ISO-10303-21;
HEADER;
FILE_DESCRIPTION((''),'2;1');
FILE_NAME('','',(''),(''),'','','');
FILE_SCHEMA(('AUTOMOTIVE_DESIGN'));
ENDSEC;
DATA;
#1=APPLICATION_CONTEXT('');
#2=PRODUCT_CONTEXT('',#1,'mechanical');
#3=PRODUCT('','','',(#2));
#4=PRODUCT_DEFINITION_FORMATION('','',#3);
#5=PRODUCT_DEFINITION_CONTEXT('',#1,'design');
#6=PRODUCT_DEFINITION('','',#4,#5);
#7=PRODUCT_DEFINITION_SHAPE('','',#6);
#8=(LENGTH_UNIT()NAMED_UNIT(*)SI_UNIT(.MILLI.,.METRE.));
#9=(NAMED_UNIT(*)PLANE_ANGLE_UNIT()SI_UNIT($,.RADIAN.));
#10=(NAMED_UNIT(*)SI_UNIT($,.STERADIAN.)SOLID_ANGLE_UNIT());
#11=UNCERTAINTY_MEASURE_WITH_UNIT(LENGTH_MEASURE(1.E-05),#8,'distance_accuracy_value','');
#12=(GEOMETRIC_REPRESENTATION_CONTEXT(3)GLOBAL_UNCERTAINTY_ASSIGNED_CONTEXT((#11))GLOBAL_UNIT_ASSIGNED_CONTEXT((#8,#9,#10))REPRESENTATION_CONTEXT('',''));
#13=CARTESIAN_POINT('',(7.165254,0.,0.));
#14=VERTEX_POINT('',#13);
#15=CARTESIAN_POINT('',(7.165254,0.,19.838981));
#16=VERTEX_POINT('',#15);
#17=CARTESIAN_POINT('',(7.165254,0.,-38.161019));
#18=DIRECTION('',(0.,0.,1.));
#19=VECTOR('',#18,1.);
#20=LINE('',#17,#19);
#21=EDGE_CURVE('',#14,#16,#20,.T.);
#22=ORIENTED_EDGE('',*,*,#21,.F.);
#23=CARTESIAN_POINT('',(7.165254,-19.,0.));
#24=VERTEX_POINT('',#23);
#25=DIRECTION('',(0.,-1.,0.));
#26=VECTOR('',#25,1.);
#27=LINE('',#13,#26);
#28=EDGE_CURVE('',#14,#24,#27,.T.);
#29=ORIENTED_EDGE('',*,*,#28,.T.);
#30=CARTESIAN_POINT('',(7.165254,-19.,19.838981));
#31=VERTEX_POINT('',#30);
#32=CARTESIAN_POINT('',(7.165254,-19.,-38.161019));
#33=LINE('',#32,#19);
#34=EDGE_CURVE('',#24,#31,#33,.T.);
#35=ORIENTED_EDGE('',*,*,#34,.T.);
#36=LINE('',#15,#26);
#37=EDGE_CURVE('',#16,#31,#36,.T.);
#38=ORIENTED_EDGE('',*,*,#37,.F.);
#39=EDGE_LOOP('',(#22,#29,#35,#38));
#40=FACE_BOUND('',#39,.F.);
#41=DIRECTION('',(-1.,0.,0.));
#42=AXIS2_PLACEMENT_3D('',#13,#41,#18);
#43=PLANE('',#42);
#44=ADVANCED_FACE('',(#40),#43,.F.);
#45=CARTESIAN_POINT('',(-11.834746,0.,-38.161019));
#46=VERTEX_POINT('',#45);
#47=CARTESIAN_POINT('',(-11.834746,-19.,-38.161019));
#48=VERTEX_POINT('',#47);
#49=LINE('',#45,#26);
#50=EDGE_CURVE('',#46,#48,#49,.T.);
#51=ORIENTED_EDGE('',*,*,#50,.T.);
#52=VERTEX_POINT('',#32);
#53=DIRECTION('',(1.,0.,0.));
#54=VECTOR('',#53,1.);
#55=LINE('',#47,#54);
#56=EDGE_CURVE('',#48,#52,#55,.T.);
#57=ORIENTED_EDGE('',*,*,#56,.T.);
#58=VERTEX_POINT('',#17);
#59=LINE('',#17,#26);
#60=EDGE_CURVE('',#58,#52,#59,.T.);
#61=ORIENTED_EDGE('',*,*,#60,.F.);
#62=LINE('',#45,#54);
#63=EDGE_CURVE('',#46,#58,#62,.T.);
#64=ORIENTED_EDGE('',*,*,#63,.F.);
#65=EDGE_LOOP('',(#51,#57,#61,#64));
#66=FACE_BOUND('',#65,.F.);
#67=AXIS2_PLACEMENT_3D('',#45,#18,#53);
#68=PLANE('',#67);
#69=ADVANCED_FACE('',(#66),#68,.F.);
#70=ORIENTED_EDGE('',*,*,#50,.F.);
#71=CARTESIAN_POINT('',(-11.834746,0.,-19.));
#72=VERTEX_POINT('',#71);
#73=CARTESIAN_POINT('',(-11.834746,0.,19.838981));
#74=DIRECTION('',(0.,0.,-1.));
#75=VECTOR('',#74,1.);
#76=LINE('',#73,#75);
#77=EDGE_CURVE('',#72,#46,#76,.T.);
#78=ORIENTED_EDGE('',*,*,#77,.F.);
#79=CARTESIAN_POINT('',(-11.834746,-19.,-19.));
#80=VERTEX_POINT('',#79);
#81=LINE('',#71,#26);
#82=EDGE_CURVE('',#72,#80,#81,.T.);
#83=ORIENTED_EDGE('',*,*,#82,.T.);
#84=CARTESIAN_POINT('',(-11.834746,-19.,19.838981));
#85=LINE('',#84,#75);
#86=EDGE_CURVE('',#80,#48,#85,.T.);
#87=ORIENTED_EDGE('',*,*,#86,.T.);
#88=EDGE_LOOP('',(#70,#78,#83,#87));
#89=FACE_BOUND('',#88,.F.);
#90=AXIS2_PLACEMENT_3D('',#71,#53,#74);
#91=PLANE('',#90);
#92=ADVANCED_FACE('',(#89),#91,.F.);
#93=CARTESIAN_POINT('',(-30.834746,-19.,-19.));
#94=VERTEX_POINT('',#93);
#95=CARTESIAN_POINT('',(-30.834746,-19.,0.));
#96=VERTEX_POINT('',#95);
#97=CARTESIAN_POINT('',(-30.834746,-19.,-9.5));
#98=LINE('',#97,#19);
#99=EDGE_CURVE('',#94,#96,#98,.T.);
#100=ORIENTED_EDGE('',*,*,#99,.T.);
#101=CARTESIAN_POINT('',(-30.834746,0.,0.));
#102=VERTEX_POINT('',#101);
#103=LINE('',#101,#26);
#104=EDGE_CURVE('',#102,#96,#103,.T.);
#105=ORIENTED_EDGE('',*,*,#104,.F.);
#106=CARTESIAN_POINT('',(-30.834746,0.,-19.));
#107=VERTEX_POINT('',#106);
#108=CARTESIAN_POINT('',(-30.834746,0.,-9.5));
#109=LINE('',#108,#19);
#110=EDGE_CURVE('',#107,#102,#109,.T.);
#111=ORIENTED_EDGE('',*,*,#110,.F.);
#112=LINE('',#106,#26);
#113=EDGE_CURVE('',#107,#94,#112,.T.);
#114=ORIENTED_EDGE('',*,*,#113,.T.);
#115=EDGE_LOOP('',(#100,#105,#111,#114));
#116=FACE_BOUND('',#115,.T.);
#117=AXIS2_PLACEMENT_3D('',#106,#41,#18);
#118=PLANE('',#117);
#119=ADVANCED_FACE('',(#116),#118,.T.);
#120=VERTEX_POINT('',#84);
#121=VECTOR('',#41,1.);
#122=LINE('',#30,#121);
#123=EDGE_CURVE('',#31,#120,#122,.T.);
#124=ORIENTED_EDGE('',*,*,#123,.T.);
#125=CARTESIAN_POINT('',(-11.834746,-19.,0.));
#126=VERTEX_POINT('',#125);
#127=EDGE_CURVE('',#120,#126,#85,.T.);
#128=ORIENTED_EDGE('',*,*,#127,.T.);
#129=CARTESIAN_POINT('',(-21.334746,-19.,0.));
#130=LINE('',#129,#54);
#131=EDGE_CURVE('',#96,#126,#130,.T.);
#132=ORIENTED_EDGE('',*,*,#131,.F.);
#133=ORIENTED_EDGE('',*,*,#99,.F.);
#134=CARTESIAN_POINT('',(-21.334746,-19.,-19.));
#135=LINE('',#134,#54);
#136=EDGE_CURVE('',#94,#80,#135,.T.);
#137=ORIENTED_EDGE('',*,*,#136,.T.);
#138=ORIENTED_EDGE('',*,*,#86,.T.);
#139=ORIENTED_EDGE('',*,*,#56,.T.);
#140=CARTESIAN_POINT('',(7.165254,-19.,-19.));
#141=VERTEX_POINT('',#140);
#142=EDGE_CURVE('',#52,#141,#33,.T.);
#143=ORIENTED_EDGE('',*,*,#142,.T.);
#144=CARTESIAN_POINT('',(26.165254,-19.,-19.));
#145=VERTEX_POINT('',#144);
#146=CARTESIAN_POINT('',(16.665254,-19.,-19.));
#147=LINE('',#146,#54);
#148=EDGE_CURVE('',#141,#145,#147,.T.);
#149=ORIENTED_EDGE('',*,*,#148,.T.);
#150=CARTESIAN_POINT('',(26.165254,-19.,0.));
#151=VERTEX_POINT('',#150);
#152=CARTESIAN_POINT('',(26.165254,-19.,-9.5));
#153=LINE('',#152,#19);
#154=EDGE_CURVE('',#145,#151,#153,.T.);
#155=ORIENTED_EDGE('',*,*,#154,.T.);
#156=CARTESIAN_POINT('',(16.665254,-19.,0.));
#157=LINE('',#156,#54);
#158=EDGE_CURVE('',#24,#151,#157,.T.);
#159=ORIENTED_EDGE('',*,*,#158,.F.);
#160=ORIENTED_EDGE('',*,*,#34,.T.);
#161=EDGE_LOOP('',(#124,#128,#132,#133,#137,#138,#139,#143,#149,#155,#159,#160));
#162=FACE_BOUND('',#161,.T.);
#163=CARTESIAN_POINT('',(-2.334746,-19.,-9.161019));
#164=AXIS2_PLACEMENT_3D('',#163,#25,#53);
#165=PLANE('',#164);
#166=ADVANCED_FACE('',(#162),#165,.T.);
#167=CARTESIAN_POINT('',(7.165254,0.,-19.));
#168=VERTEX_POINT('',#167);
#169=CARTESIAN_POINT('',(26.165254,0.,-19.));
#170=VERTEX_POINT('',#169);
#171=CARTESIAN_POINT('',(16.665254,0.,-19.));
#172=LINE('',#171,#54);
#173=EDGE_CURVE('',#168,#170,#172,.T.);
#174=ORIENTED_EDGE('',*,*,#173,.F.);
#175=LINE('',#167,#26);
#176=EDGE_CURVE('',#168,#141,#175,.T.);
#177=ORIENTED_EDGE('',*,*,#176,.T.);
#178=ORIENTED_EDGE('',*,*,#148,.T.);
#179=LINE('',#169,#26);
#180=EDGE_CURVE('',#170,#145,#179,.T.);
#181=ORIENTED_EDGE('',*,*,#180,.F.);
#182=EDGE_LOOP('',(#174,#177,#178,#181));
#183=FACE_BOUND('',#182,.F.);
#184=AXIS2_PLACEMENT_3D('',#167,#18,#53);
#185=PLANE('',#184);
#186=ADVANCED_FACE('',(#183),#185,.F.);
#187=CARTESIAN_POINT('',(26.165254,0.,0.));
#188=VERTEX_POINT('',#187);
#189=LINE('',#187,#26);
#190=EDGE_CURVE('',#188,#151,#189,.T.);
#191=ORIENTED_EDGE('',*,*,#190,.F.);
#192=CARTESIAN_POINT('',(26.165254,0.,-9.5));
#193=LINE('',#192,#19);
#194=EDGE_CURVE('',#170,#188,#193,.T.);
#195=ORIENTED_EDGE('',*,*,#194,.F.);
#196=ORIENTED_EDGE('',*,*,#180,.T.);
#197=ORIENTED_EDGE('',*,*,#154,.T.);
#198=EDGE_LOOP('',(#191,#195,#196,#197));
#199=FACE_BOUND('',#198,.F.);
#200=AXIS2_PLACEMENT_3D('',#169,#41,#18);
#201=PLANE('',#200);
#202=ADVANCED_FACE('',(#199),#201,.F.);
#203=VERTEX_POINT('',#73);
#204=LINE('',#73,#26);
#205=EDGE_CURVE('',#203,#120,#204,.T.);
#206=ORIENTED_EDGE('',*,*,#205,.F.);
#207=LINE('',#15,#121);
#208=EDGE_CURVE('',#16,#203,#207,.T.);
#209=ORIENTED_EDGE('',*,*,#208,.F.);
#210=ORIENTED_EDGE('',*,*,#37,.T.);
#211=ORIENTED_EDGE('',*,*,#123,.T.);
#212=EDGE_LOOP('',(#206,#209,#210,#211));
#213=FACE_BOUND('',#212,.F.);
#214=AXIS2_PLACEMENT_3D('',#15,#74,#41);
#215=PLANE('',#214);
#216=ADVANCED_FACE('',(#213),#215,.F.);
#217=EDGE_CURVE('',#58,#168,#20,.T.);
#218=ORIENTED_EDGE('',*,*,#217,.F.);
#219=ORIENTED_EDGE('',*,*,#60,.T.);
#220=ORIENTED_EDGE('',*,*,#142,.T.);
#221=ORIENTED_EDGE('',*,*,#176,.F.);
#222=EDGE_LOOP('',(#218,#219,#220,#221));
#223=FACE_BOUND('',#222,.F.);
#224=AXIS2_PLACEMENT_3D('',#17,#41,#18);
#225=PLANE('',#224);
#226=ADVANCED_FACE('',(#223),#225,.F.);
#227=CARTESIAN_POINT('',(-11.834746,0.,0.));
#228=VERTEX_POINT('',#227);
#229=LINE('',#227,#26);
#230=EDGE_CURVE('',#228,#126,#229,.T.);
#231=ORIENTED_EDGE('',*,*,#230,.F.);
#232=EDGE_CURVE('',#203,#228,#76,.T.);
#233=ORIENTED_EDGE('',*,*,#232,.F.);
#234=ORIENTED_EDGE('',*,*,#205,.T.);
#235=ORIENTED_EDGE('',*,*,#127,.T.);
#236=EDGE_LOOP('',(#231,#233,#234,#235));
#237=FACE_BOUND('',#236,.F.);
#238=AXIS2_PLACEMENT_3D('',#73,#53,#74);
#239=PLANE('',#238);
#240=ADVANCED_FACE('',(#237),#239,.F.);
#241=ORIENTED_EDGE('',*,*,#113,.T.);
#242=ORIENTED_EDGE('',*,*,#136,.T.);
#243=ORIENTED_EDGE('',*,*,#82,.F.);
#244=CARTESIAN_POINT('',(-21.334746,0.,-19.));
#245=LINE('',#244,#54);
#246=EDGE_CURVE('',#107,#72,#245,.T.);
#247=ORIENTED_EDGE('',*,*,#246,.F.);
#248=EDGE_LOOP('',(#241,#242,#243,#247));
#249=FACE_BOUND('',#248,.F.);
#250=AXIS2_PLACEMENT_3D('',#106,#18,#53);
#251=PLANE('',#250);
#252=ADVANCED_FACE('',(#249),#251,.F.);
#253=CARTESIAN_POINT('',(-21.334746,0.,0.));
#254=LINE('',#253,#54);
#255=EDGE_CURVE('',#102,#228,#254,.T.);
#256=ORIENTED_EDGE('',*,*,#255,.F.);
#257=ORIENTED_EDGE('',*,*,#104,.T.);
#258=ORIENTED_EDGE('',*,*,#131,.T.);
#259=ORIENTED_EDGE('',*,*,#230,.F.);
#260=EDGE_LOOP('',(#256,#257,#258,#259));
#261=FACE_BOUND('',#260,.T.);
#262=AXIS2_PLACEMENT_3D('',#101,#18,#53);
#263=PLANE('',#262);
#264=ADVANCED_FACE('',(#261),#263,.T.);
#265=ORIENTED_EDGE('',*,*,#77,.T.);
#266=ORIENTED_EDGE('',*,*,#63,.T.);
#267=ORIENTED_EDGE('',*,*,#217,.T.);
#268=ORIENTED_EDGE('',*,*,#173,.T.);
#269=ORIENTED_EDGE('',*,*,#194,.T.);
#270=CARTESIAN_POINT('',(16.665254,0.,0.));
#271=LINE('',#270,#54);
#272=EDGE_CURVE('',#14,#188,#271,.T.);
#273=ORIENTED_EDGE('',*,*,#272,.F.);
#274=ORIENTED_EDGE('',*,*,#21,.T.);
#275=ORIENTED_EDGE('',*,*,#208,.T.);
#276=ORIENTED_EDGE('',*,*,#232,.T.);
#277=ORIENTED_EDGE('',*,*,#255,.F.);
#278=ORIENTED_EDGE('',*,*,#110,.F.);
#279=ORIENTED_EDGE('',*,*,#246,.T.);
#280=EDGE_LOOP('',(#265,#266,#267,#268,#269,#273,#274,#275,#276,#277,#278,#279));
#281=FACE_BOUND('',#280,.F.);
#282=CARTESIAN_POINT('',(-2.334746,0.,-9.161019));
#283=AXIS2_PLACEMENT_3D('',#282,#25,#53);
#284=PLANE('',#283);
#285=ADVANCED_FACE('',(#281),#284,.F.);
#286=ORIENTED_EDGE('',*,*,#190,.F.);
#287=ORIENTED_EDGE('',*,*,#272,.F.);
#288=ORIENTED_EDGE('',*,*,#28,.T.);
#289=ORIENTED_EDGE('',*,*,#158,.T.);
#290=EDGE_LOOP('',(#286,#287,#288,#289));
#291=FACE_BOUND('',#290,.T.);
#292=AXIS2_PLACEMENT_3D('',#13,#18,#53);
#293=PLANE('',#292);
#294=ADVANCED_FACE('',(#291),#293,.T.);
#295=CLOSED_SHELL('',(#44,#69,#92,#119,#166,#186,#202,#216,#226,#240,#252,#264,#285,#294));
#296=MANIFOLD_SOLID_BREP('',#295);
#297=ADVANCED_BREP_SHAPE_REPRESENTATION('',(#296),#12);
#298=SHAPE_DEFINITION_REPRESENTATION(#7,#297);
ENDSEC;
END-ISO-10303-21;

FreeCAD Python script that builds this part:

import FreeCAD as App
import Part
import Sketcher

V = App.Vector

doc = App.newDocument("Part")
params = doc.addObject("Spreadsheet::Sheet", "Params")
for row, (alias, value) in enumerate([
    ("sketch1_width", "19 mm"),
    ("pad1_length", "19 mm"),
], start=1):
    params.set(f"A{row}", alias)
    params.set(f"B{row}", "=" + value)
    params.setAlias(f"B{row}", alias)

body = doc.addObject("PartDesign::Body", "Body")

sketch1 = body.newObject("Sketcher::SketchObject", "Sketch")
sketch1.AttachmentSupport = (doc.getObject("XZ_Plane"), [""])
sketch1.MapMode = "FlatFace"
sketch1.addGeometry(Part.LineSegment(V(7, 20, 0), V(-12, 20, 0)), False)
sketch1.addGeometry(Part.LineSegment(V(-12, 20, 0), V(-12, 0, 0)), False)
sketch1.addGeometry(Part.LineSegment(V(-12, 0, 0), V(-31, 0, 0)), False)
sketch1.addGeometry(Part.LineSegment(V(-31, 0, 0), V(-31, -19, 0)), False)
sketch1.addGeometry(Part.LineSegment(V(-31, -19, 0), V(-12, -19, 0)), False)
sketch1.addGeometry(Part.LineSegment(V(-12, -19, 0), V(-12, -38, 0)), False)
sketch1.addGeometry(Part.LineSegment(V(-12, -38, 0), V(7, -38, 0)), False)
sketch1.addGeometry(Part.LineSegment(V(7, -38, 0), V(7, -19, 0)), False)
sketch1.addGeometry(Part.LineSegment(V(7, -19, 0), V(26, -19, 0)), False)
sketch1.addGeometry(Part.LineSegment(V(26, -19, 0), V(26, 0, 0)), False)
sketch1.addGeometry(Part.LineSegment(V(26, 0, 0), V(7, 0, 0)), False)
sketch1.addGeometry(Part.LineSegment(V(7, 0, 0), V(7, 20, 0)), False)
sketch1.addConstraint(Sketcher.Constraint("Coincident", 0, 2, 1, 1))
sketch1.addConstraint(Sketcher.Constraint("Coincident", 1, 2, 2, 1))
sketch1.addConstraint(Sketcher.Constraint("Coincident", 2, 2, 3, 1))
sketch1.addConstraint(Sketcher.Constraint("Coincident", 3, 2, 4, 1))
sketch1.addConstraint(Sketcher.Constraint("Coincident", 4, 2, 5, 1))
sketch1.addConstraint(Sketcher.Constraint("Coincident", 5, 2, 6, 1))
sketch1.addConstraint(Sketcher.Constraint("Coincident", 6, 2, 7, 1))
sketch1.addConstraint(Sketcher.Constraint("Coincident", 7, 2, 8, 1))
sketch1.addConstraint(Sketcher.Constraint("Coincident", 8, 2, 9, 1))
sketch1.addConstraint(Sketcher.Constraint("Coincident", 9, 2, 10, 1))
sketch1.addConstraint(Sketcher.Constraint("Coincident", 10, 2, 11, 1))
sketch1.addConstraint(Sketcher.Constraint("Coincident", 11, 2, 0, 1))
sketch1.addConstraint(Sketcher.Constraint("Horizontal", 0))
sketch1.addConstraint(Sketcher.Constraint("Vertical", 1))
sketch1.addConstraint(Sketcher.Constraint("Horizontal", 2))
sketch1.addConstraint(Sketcher.Constraint("Vertical", 3))
sketch1.addConstraint(Sketcher.Constraint("Horizontal", 4))
sketch1.addConstraint(Sketcher.Constraint("Vertical", 5))
sketch1.addConstraint(Sketcher.Constraint("Horizontal", 6))
sketch1.addConstraint(Sketcher.Constraint("Vertical", 7))
sketch1.addConstraint(Sketcher.Constraint("Horizontal", 8))
sketch1.addConstraint(Sketcher.Constraint("Vertical", 9))
sketch1.addConstraint(Sketcher.Constraint("Horizontal", 10))
sketch1.addConstraint(Sketcher.Constraint("Vertical", 11))
sketch1.addConstraint(Sketcher.Constraint("PointOnObject", 1, 2, -1))
sketch1.addConstraint(Sketcher.Constraint("PointOnObject", 9, 2, -1))
sketch1.addConstraint(Sketcher.Constraint("Horizontal", 4, 2, 7, 2))
sketch1.addConstraint(Sketcher.Constraint("Vertical", 1, 2, 4, 2))
sketch1.addConstraint(Sketcher.Constraint("Vertical", 7, 2, 10, 2))
sketch1.addConstraint(Sketcher.Constraint("Equal", 0, 2))
sketch1.addConstraint(Sketcher.Constraint("Equal", 6, 8))
sketch1.addConstraint(Sketcher.Constraint("Equal", 10, 3))
sketch1.addConstraint(Sketcher.Constraint("DistanceX", 0, 2, 0, 1, 19.0))
sketch1.addConstraint(Sketcher.Constraint("DistanceY", 5, 2, 0, 2, 58.0))
sketch1.addConstraint(Sketcher.Constraint("DistanceY", 1, 2, 1, 1, 19.838981))
sketch1.addConstraint(Sketcher.Constraint("DistanceX", 0, 2, -1, 1, 11.834746))
sketch1.setExpression("Constraints[32]", "Params.sketch1_width")
pad1 = body.newObject("PartDesign::Pad", "Pad")
pad1.Profile = sketch1
pad1.setExpression("Length", "Params.pad1_length")

doc.recompute()
